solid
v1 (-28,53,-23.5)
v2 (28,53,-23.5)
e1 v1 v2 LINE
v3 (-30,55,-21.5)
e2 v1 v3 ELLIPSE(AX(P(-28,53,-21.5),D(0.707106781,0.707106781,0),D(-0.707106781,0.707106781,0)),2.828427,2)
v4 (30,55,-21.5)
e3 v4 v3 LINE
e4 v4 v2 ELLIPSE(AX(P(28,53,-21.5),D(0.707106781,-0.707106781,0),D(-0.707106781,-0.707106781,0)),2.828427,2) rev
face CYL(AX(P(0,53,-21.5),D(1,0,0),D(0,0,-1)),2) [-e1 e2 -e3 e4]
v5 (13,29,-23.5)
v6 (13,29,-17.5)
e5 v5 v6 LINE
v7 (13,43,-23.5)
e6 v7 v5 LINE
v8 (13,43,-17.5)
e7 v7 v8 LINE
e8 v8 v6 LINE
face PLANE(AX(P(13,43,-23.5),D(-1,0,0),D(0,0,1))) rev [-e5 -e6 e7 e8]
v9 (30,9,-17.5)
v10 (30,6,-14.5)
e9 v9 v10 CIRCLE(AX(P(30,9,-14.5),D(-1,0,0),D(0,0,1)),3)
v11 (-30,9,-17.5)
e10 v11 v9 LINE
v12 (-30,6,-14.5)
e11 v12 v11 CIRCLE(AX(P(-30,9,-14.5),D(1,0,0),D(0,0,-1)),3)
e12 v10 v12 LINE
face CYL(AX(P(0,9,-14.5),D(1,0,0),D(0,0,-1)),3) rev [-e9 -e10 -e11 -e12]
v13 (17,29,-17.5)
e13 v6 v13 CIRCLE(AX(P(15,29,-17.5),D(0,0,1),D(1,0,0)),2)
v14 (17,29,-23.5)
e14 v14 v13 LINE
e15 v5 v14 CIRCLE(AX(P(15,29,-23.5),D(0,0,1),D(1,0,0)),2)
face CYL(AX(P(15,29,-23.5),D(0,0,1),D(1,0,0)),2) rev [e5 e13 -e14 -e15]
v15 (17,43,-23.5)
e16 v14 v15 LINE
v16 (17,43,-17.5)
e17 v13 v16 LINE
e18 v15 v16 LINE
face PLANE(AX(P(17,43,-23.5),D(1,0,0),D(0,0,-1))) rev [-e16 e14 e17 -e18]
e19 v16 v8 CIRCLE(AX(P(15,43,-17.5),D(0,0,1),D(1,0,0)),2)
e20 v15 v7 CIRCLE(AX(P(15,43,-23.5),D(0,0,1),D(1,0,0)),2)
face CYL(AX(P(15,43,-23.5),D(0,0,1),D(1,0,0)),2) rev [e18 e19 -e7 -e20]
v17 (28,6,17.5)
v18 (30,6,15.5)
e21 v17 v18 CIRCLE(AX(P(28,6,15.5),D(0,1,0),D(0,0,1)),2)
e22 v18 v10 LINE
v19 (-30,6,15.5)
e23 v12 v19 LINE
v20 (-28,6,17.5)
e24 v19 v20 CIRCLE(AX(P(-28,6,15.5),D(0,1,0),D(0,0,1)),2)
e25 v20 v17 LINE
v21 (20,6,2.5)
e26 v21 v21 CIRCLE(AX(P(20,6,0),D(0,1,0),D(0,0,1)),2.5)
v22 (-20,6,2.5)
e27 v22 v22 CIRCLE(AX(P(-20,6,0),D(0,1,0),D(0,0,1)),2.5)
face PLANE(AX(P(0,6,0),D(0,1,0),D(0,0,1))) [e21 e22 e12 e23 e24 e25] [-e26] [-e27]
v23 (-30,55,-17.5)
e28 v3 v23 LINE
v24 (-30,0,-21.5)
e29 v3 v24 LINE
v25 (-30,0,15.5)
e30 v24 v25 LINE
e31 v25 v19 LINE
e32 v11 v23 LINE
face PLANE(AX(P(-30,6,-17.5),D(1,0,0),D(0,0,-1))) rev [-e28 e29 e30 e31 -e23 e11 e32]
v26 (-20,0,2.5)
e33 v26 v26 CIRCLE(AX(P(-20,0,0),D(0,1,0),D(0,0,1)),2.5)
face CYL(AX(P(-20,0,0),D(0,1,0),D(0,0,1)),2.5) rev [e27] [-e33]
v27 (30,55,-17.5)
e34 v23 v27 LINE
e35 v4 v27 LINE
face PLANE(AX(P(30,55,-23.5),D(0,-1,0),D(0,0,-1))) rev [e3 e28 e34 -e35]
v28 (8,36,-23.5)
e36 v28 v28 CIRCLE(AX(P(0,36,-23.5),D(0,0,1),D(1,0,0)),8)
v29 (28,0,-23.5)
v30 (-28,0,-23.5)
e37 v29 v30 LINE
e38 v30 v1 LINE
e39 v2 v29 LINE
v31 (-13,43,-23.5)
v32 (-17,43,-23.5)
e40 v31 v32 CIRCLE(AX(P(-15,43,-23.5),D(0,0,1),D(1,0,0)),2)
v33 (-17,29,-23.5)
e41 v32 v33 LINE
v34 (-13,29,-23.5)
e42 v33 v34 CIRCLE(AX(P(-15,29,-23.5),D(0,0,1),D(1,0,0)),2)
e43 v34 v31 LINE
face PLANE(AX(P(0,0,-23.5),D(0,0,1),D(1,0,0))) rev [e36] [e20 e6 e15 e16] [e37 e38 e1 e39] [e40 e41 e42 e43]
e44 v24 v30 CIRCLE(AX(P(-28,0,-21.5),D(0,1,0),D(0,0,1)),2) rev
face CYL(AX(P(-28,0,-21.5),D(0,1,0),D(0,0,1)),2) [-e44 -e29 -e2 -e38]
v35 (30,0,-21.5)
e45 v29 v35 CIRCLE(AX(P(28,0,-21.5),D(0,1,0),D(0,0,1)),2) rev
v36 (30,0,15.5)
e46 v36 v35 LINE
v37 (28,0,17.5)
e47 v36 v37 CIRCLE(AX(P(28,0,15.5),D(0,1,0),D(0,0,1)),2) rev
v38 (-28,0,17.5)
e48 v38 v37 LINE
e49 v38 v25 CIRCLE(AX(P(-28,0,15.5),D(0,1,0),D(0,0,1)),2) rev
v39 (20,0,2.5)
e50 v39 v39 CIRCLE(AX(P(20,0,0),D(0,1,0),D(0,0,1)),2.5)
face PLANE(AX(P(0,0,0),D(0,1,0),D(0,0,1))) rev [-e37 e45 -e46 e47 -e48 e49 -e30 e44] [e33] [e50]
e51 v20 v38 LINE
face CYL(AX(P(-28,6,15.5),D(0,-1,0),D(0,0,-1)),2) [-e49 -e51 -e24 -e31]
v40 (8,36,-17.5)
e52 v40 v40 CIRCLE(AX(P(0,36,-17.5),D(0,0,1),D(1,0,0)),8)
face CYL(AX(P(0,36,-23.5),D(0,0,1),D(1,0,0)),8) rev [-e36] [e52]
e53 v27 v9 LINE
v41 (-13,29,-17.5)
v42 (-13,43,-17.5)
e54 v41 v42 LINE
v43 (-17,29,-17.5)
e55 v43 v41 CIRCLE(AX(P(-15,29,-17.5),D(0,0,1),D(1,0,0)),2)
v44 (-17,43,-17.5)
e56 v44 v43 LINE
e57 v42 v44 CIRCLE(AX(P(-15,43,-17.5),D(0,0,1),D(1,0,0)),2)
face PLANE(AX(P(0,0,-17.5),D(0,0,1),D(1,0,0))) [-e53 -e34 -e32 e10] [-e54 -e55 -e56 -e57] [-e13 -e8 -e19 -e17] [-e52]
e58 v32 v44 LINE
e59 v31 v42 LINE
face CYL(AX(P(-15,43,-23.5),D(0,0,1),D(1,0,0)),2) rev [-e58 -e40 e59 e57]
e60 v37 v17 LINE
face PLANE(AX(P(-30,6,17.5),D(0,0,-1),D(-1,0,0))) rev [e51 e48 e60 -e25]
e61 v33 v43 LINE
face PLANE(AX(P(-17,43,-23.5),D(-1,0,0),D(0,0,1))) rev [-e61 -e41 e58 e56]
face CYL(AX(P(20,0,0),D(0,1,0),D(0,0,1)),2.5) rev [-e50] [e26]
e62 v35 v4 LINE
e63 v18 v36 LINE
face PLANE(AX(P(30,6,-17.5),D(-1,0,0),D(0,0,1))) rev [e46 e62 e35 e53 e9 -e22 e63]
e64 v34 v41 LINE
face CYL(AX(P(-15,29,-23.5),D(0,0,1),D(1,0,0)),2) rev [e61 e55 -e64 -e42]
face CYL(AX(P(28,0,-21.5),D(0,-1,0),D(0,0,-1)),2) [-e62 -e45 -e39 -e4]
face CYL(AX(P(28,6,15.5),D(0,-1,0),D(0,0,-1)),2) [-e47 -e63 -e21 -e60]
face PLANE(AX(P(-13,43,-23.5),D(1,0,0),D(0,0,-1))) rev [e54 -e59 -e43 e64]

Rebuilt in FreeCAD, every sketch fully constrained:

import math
import FreeCAD as App
import Part
import Sketcher
from FreeCAD import Vector


def edges_at(feature, points):
    """Names of the edges that pass closest to the given points."""
    edges = feature.Shape.Edges
    near = lambda p: min(range(len(edges)), key=lambda i: edges[i].distToShape(Part.Vertex(*p))[0])
    return sorted({f"Edge{near(p) + 1}" for p in points})

doc = App.newDocument("Part")
body = doc.addObject("PartDesign::Body", "Body")

# Sketch on XZ plane
sketch1 = doc.addObject("Sketcher::SketchObject", "Sketch")
body.addObject(sketch1)
sketch1.AttachmentSupport = (doc.XZ_Plane, [""])
sketch1.MapMode = "FlatFace"
sketch1.addGeometry(Part.LineSegment(Vector(-30, -18, 0), Vector(-30, 18, 0)), False)
sketch1.addGeometry(Part.LineSegment(Vector(-30, 18, 0), Vector(30, 18, 0)), False)
sketch1.addGeometry(Part.LineSegment(Vector(30, 18, 0), Vector(30, -18, 0)), False)
sketch1.addGeometry(Part.LineSegment(Vector(30, -18, 0), Vector(-30, -18, 0)), False)
sketch1.addConstraint(Sketcher.Constraint("Coincident", 0, 2, 1, 1))
sketch1.addConstraint(Sketcher.Constraint("Coincident", 1, 2, 2, 1))
sketch1.addConstraint(Sketcher.Constraint("Coincident", 2, 2, 3, 1))
sketch1.addConstraint(Sketcher.Constraint("Coincident", 3, 2, 0, 1))
sketch1.addConstraint(Sketcher.Constraint("Vertical", 0))
sketch1.addConstraint(Sketcher.Constraint("Horizontal", 1))
sketch1.addConstraint(Sketcher.Constraint("Vertical", 2))
sketch1.addConstraint(Sketcher.Constraint("Horizontal", 3))
sketch1.addConstraint(Sketcher.Constraint("Symmetric", 0, 2, 2, 2, -1, 1))
sketch1.addConstraint(Sketcher.Constraint("DistanceX", 1, 1, 1, 2, 60.0))
sketch1.addConstraint(Sketcher.Constraint("DistanceY", 0, 1, 0, 2, 35.0))
pad1 = doc.addObject("PartDesign::Pad", "Pad")
body.addObject(pad1)
pad1.Profile = sketch1
pad1.Length = 6
pad1.Reversed = True

# Sketch on XY plane
sketch2 = doc.addObject("Sketcher::SketchObject", "Sketch001")
body.addObject(sketch2)
sketch2.AttachmentSupport = (doc.XY_Plane, [""])
sketch2.MapMode = "FlatFace"
sketch2.AttachmentOffset = App.Placement(Vector(0, 0, -17.5), App.Rotation())
sketch2.addGeometry(Part.LineSegment(Vector(30, 55, 0), Vector(30, 0, 0)), False)
sketch2.addGeometry(Part.LineSegment(Vector(30, 0, 0), Vector(-30, 0, 0)), False)
sketch2.addGeometry(Part.LineSegment(Vector(-30, 0, 0), Vector(-30, 55, 0)), False)
sketch2.addGeometry(Part.LineSegment(Vector(-30, 55, 0), Vector(30, 55, 0)), False)
sketch2.addConstraint(Sketcher.Constraint("Coincident", 0, 2, 1, 1))
sketch2.addConstraint(Sketcher.Constraint("Coincident", 1, 2, 2, 1))
sketch2.addConstraint(Sketcher.Constraint("Coincident", 2, 2, 3, 1))
sketch2.addConstraint(Sketcher.Constraint("Coincident", 3, 2, 0, 1))
sketch2.addConstraint(Sketcher.Constraint("Vertical", 0))
sketch2.addConstraint(Sketcher.Constraint("Horizontal", 1))
sketch2.addConstraint(Sketcher.Constraint("Vertical", 2))
sketch2.addConstraint(Sketcher.Constraint("Horizontal", 3))
sketch2.addConstraint(Sketcher.Constraint("Symmetric", 0, 2, 1, 2, -1, 1))
sketch2.addConstraint(Sketcher.Constraint("DistanceX", 1, 2, 1, 1, 60.0))
sketch2.addConstraint(Sketcher.Constraint("DistanceY", 0, 2, 0, 1, 55.0))
pad2 = doc.addObject("PartDesign::Pad", "Pad001")
body.addObject(pad2)
pad2.Profile = sketch2
pad2.Length = 6
pad2.Reversed = True

# Sketch on XY plane
sketch3 = doc.addObject("Sketcher::SketchObject", "Sketch002")
body.addObject(sketch3)
sketch3.AttachmentSupport = (doc.XY_Plane, [""])
sketch3.MapMode = "FlatFace"
sketch3.AttachmentOffset = App.Placement(Vector(0, 0, -17.5), App.Rotation())
sketch3.addGeometry(Part.Circle(Vector(0, 36, 0), Vector(0, 0, 1), 8), False)
sketch3.addConstraint(Sketcher.Constraint("PointOnObject", 0, 3, -2))
sketch3.addConstraint(Sketcher.Constraint("Diameter", 0, 16.0))
sketch3.addConstraint(Sketcher.Constraint("DistanceY", -1, 1, 0, 3, 36.0))
pocket1 = doc.addObject("PartDesign::Pocket", "Pocket")
body.addObject(pocket1)
pocket1.Profile = sketch3
pocket1.Type = "ThroughAll"

# Sketch on XY plane
sketch4 = doc.addObject("Sketcher::SketchObject", "Sketch003")
body.addObject(sketch4)
sketch4.AttachmentSupport = (doc.XY_Plane, [""])
sketch4.MapMode = "FlatFace"
sketch4.AttachmentOffset = App.Placement(Vector(0, 0, -17.5), App.Rotation())
sketch4.addGeometry(Part.LineSegment(Vector(-13, 29, 0), Vector(-13, 43, 0)), False)
sketch4.addGeometry(Part.ArcOfCircle(Part.Circle(Vector(-15, 43, 0), Vector(0, 0, 1), 2), math.radians(0), math.radians(180)), False)
sketch4.addGeometry(Part.LineSegment(Vector(-17, 43, 0), Vector(-17, 29, 0)), False)
sketch4.addGeometry(Part.ArcOfCircle(Part.Circle(Vector(-15, 29, 0), Vector(0, 0, 1), 2), math.radians(180), math.radians(360)), False)
sketch4.addGeometry(Part.LineSegment(Vector(17, 29, 0), Vector(17, 43, 0)), False)
sketch4.addGeometry(Part.ArcOfCircle(Part.Circle(Vector(15, 43, 0), Vector(0, 0, 1), 2), math.radians(0), math.radians(180)), False)
sketch4.addGeometry(Part.LineSegment(Vector(13, 43, 0), Vector(13, 29, 0)), False)
sketch4.addGeometry(Part.ArcOfCircle(Part.Circle(Vector(15, 29, 0), Vector(0, 0, 1), 2), math.radians(180), math.radians(360)), False)
sketch4.addConstraint(Sketcher.Constraint("Tangent", 0, 2, 1, 1))
sketch4.addConstraint(Sketcher.Constraint("Tangent", 1, 2, 2, 1))
sketch4.addConstraint(Sketcher.Constraint("Tangent", 2, 2, 3, 1))
sketch4.addConstraint(Sketcher.Constraint("Tangent", 3, 2, 0, 1))
sketch4.addConstraint(Sketcher.Constraint("Tangent", 4, 2, 5, 1))
sketch4.addConstraint(Sketcher.Constraint("Tangent", 5, 2, 6, 1))
sketch4.addConstraint(Sketcher.Constraint("Tangent", 6, 2, 7, 1))
sketch4.addConstraint(Sketcher.Constraint("Tangent", 7, 2, 4, 1))
sketch4.addConstraint(Sketcher.Constraint("Vertical", 0))
sketch4.addConstraint(Sketcher.Constraint("Vertical", 2))
sketch4.addConstraint(Sketcher.Constraint("Vertical", 4))
sketch4.addConstraint(Sketcher.Constraint("Vertical", 6))
sketch4.addConstraint(Sketcher.Constraint("Equal", 3, 5))
sketch4.addConstraint(Sketcher.Constraint("Symmetric", 1, 3, 5, 3, -2))
sketch4.addConstraint(Sketcher.Constraint("Horizontal", 3, 3, 7, 3))
sketch4.addConstraint(Sketcher.Constraint("Radius", 1, 2.0))
sketch4.addConstraint(Sketcher.Constraint("DistanceY", 0, 1, 0, 2, 14.0))
sketch4.addConstraint(Sketcher.Constraint("DistanceX", 1, 3, -1, 1, 15.0))
sketch4.addConstraint(Sketcher.Constraint("DistanceY", -1, 1, 1, 3, 43.0))
pocket2 = doc.addObject("PartDesign::Pocket", "Pocket001")
body.addObject(pocket2)
pocket2.Profile = sketch4
pocket2.Type = "ThroughAll"

# Sketch on XZ plane
sketch5 = doc.addObject("Sketcher::SketchObject", "Sketch004")
body.addObject(sketch5)
sketch5.AttachmentSupport = (doc.XZ_Plane, [""])
sketch5.MapMode = "FlatFace"
sketch5.AttachmentOffset = App.Placement(Vector(0, 0, -6), App.Rotation())
sketch5.addGeometry(Part.Circle(Vector(-20, 0, 0), Vector(0, 0, 1), 2.5), False)
sketch5.addGeometry(Part.Circle(Vector(20, 0, 0), Vector(0, 0, 1), 2.5), False)
sketch5.addConstraint(Sketcher.Constraint("Equal", 0, 1))
sketch5.addConstraint(Sketcher.Constraint("Symmetric", 0, 3, 1, 3, -1, 1))
sketch5.addConstraint(Sketcher.Constraint("PointOnObject", 0, 3, -1))
sketch5.addConstraint(Sketcher.Constraint("Diameter", 0, 5.0))
sketch5.addConstraint(Sketcher.Constraint("DistanceX", 0, 3, -1, 1, 20.0))
pocket3 = doc.addObject("PartDesign::Pocket", "Pocket002")
body.addObject(pocket3)
pocket3.Profile = sketch5
pocket3.Length = 6
pocket3.Reversed = True
doc.recompute()

fillet = doc.addObject("PartDesign::Fillet", "Fillet")
body.addObject(fillet)
fillet.Base = (pocket3, edges_at(pocket3, [
    (30, 27.5, -23.5),
    (-30, 27.5, -23.5),
    (0, 55, -23.5),
    (30, 3, 17.5),
    (-30, 3, 17.5),
]))
fillet.Radius = 2
doc.recompute()

fillet2 = doc.addObject("PartDesign::Fillet", "Fillet001")
body.addObject(fillet2)
fillet2.Base = (fillet, edges_at(fillet, [(0, 6, -17.5)]))
fillet2.Radius = 3

doc.recompute()
